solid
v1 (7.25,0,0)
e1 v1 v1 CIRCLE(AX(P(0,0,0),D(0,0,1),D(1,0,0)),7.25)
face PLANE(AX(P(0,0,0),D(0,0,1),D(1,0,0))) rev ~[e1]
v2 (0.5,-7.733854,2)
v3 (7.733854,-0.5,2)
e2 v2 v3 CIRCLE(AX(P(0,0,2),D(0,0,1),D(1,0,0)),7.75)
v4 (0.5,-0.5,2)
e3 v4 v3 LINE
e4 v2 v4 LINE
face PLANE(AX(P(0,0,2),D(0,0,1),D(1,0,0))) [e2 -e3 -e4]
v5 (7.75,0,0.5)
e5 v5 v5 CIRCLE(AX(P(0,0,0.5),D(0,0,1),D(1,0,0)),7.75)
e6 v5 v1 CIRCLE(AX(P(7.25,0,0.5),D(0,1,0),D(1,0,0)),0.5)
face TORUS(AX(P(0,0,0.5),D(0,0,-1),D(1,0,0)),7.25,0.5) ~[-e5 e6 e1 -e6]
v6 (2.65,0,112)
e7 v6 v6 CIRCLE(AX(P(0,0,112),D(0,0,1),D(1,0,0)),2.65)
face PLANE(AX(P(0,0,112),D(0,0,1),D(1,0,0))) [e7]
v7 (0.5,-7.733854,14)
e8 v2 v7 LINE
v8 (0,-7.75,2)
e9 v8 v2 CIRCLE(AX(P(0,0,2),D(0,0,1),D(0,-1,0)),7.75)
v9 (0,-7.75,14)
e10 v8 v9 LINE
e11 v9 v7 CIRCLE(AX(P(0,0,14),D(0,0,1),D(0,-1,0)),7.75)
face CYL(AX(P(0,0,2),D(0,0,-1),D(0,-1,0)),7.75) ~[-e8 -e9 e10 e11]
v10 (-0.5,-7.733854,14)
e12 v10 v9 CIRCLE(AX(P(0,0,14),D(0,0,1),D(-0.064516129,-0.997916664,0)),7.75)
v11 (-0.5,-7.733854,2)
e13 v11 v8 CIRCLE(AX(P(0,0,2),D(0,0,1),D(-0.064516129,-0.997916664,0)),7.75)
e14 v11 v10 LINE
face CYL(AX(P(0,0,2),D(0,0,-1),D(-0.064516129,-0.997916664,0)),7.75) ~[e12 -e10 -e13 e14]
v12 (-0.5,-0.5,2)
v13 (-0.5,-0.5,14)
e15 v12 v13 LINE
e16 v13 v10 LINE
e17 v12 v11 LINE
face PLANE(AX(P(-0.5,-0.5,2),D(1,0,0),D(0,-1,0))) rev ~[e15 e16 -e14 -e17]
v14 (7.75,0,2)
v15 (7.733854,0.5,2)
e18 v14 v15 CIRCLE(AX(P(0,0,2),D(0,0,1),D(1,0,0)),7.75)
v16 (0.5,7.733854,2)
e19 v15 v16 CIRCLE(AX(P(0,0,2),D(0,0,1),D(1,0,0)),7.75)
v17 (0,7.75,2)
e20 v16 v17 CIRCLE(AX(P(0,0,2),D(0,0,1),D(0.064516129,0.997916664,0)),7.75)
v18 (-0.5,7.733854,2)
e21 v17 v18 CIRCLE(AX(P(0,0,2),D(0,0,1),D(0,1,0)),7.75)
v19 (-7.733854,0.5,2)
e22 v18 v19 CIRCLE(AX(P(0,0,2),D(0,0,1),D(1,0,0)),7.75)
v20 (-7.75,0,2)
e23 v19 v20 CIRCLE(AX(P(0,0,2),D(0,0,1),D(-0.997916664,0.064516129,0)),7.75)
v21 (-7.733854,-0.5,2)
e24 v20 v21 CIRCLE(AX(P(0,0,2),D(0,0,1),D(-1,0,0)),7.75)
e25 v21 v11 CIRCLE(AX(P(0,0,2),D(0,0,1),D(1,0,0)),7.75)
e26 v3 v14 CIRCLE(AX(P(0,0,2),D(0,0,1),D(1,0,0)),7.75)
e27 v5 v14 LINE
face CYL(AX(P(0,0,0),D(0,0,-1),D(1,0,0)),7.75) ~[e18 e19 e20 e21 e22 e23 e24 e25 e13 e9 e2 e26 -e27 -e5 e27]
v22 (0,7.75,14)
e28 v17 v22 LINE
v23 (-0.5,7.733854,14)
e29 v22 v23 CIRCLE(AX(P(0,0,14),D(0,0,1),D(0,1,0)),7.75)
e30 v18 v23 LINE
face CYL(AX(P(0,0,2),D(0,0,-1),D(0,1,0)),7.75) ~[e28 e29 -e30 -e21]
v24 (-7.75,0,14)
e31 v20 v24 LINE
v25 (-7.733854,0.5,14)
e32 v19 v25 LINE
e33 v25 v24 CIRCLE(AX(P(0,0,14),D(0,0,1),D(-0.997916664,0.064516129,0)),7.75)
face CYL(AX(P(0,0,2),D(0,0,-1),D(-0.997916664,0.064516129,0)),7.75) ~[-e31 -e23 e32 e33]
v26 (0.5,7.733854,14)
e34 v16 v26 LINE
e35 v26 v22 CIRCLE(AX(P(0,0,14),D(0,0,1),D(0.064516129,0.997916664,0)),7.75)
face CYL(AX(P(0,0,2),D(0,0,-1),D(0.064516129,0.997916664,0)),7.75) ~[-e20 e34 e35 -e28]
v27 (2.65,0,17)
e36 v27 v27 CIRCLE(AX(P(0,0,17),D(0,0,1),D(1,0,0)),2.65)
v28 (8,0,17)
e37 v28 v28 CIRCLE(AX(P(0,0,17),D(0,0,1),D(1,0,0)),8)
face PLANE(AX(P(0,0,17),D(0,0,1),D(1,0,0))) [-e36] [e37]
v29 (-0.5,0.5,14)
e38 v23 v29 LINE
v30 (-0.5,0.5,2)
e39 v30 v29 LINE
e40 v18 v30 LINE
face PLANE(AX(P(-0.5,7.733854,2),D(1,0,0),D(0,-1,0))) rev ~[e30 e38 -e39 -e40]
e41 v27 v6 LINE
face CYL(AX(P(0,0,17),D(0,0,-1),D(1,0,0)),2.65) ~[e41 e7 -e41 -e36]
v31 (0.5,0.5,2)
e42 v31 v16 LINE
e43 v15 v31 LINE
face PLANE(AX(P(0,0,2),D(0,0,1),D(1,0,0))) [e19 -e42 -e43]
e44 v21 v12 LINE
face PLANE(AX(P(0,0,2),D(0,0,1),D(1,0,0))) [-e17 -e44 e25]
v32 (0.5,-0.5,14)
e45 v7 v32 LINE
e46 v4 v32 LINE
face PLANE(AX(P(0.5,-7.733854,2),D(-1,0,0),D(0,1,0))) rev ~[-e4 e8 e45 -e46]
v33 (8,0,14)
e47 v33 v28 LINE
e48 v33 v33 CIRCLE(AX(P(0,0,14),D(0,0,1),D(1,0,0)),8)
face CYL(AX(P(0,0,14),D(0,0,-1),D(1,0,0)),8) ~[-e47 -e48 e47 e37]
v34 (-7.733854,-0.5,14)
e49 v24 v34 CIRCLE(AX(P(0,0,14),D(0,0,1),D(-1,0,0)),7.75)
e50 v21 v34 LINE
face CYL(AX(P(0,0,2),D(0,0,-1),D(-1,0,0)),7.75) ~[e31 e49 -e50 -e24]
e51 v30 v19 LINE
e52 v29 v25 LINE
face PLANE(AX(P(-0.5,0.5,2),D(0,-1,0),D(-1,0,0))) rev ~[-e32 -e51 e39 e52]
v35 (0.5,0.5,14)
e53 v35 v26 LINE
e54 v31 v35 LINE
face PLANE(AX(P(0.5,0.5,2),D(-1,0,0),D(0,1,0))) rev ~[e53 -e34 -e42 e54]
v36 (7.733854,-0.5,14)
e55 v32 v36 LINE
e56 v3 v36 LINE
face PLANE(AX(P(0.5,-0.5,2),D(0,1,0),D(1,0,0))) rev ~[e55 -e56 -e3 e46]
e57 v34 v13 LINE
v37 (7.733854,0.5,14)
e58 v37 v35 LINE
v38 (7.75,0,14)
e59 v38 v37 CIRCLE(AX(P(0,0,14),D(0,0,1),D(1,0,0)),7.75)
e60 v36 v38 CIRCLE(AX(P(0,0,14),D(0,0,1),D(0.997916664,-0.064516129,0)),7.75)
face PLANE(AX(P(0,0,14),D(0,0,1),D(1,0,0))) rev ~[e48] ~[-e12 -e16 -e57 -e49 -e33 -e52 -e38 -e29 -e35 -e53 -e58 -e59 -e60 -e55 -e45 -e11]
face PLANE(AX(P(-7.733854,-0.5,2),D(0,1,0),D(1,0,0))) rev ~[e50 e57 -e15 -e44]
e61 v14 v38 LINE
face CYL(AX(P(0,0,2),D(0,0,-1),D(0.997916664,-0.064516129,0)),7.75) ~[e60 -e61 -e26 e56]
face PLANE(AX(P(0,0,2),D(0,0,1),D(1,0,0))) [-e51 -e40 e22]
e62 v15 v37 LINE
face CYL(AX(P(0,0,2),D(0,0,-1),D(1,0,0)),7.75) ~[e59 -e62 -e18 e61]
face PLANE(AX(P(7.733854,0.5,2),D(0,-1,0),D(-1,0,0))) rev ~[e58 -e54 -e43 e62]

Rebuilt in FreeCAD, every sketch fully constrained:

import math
import FreeCAD as App
import Part
import Sketcher
from FreeCAD import Vector


def edges_at(feature, points):
    """Names of the edges that pass closest to the given points."""
    edges = feature.Shape.Edges
    near = lambda p: min(range(len(edges)), key=lambda i: edges[i].distToShape(Part.Vertex(*p))[0])
    return sorted({f"Edge{near(p) + 1}" for p in points})

doc = App.newDocument("Part")
body = doc.addObject("PartDesign::Body", "Body")

sketch1 = body.newObject("Sketcher::SketchObject", "Sketch")
sketch1.AttachmentSupport = (doc.getObject("XY_Plane"), [""])
sketch1.MapMode = "FlatFace"
sketch1.addGeometry(Part.Circle(Vector(0, 0, 0), Vector(0, 0, 1), 8), False)
sketch1.addConstraint([
    Sketcher.Constraint("Coincident", 0, 3, -1, 1),
    Sketcher.Constraint("Diameter", 0, 15.5),
])
pad1 = body.newObject("PartDesign::Pad", "Pad")
pad1.Profile = sketch1
pad1.Length = 2

sketch2 = body.newObject("Sketcher::SketchObject", "Sketch001")
sketch2.AttachmentSupport = (doc.getObject("XY_Plane"), [""])
sketch2.MapMode = "FlatFace"
sketch2.AttachmentOffset = App.Placement(Vector(0, 0, 2), App.Rotation())
sketch2.addGeometry([
    Part.LineSegment(Vector(-0.5, 0.5, 0), Vector(-7.7, 0.5, 0)),
    Part.ArcOfCircle(Part.Circle(Vector(0, 0, 0), Vector(0, 0, 1), 7.7), math.radians(176.3), math.radians(180)),
    Part.ArcOfCircle(Part.Circle(Vector(0, 0, 0), Vector(0, 0, 1), 7.7), math.radians(180), math.radians(183.7)),
    Part.LineSegment(Vector(-7.7, -0.5, 0), Vector(-0.5, -0.5, 0)),
    Part.LineSegment(Vector(-0.5, -0.5, 0), Vector(-0.5, -7.7, 0)),
    Part.ArcOfCircle(Part.Circle(Vector(0, 0, 0), Vector(0, 0, 1), 7.7), math.radians(-93.7), math.radians(-90)),
    Part.ArcOfCircle(Part.Circle(Vector(0, 0, 0), Vector(0, 0, 1), 7.7), math.radians(-90), math.radians(-86.3)),
    Part.LineSegment(Vector(0.5, -7.7, 0), Vector(0.5, -0.5, 0)),
    Part.LineSegment(Vector(0.5, -0.5, 0), Vector(7.7, -0.5, 0)),
    Part.ArcOfCircle(Part.Circle(Vector(0, 0, 0), Vector(0, 0, 1), 7.7), math.radians(-3.7), math.radians(0)),
    Part.ArcOfCircle(Part.Circle(Vector(0, 0, 0), Vector(0, 0, 1), 7.7), math.radians(0), math.radians(3.7)),
    Part.LineSegment(Vector(7.7, 0.5, 0), Vector(0.5, 0.5, 0)),
    Part.LineSegment(Vector(0.5, 0.5, 0), Vector(0.5, 7.7, 0)),
    Part.ArcOfCircle(Part.Circle(Vector(0, 0, 0), Vector(0, 0, 1), 7.7), math.radians(86.3), math.radians(90)),
    Part.ArcOfCircle(Part.Circle(Vector(0, 0, 0), Vector(0, 0, 1), 7.7), math.radians(90), math.radians(93.7)),
    Part.LineSegment(Vector(-0.5, 7.7, 0), Vector(-0.5, 0.5, 0)),
], False)
sketch2.addConstraint([
    Sketcher.Constraint("Coincident", 0, 2, 1, 1),
    Sketcher.Constraint("Tangent", 1, 2, 2, 1),
    Sketcher.Constraint("Coincident", 2, 2, 3, 1),
    Sketcher.Constraint("Coincident", 3, 2, 4, 1),
    Sketcher.Constraint("Coincident", 4, 2, 5, 1),
    Sketcher.Constraint("Tangent", 5, 2, 6, 1),
    Sketcher.Constraint("Coincident", 6, 2, 7, 1),
    Sketcher.Constraint("Coincident", 7, 2, 8, 1),
    Sketcher.Constraint("Coincident", 8, 2, 9, 1),
    Sketcher.Constraint("Tangent", 9, 2, 10, 1),
    Sketcher.Constraint("Coincident", 10, 2, 11, 1),
    Sketcher.Constraint("Coincident", 11, 2, 12, 1),
    Sketcher.Constraint("Coincident", 12, 2, 13, 1),
    Sketcher.Constraint("Tangent", 13, 2, 14, 1),
    Sketcher.Constraint("Coincident", 14, 2, 15, 1),
    Sketcher.Constraint("Coincident", 15, 2, 0, 1),
    Sketcher.Constraint("Horizontal", 0),
    Sketcher.Constraint("Horizontal", 3),
    Sketcher.Constraint("Vertical", 4),
    Sketcher.Constraint("Vertical", 7),
    Sketcher.Constraint("Horizontal", 8),
    Sketcher.Constraint("Horizontal", 11),
    Sketcher.Constraint("Vertical", 12),
    Sketcher.Constraint("Vertical", 15),
    Sketcher.Constraint("Coincident", 1, 3, -1, 1),
    Sketcher.Constraint("Coincident", 5, 3, -1, 1),
    Sketcher.Constraint("Coincident", 9, 3, -1, 1),
    Sketcher.Constraint("Coincident", 13, 3, -1, 1),
    Sketcher.Constraint("Equal", 1, 2),
    Sketcher.Constraint("Equal", 2, 5),
    Sketcher.Constraint("Equal", 5, 6),
    Sketcher.Constraint("Equal", 6, 9),
    Sketcher.Constraint("Equal", 9, 10),
    Sketcher.Constraint("Equal", 10, 13),
    Sketcher.Constraint("Equal", 13, 14),
    Sketcher.Constraint("Symmetric", 3, 2, 11, 2, -1, 1),
    Sketcher.Constraint("Symmetric", 7, 2, 15, 2, -1, 1),
    Sketcher.Constraint("Symmetric", 3, 2, 7, 2, -2),
    Sketcher.Constraint("PointOnObject", 1, 2, -1),
    Sketcher.Constraint("PointOnObject", 5, 2, -2),
    Sketcher.Constraint("PointOnObject", 9, 2, -1),
    Sketcher.Constraint("PointOnObject", 13, 2, -2),
    Sketcher.Constraint("Equal", 11, 4),
    Sketcher.Constraint("Radius", 1, 7.75),
    Sketcher.Constraint("DistanceY", 2, 2, 0, 2, 1.0),
])
pad2 = body.newObject("PartDesign::Pad", "Pad001")
pad2.Profile = sketch2
pad2.Length = 12

sketch3 = body.newObject("Sketcher::SketchObject", "Sketch002")
sketch3.AttachmentSupport = (doc.getObject("XY_Plane"), [""])
sketch3.MapMode = "FlatFace"
sketch3.AttachmentOffset = App.Placement(Vector(0, 0, 14), App.Rotation())
sketch3.addGeometry(Part.Circle(Vector(0, 0, 0), Vector(0, 0, 1), 8), False)
sketch3.addConstraint([
    Sketcher.Constraint("Coincident", 0, 3, -1, 1),
    Sketcher.Constraint("Diameter", 0, 16.0),
])
pad3 = body.newObject("PartDesign::Pad", "Pad002")
pad3.Profile = sketch3
pad3.Length = 3
doc.recompute()

fillet = body.newObject("PartDesign::Fillet", "Fillet")
fillet.Base = (pad3, edges_at(pad3, [(-7.75, 0, 0)]))
fillet.Radius = 0.5

sketch4 = body.newObject("Sketcher::SketchObject", "Sketch003")
sketch4.AttachmentSupport = (doc.getObject("XY_Plane"), [""])
sketch4.MapMode = "FlatFace"
sketch4.AttachmentOffset = App.Placement(Vector(0, 0, 17), App.Rotation())
sketch4.addGeometry(Part.Circle(Vector(0, 0, 0), Vector(0, 0, 1), 2.6), False)
sketch4.addConstraint([
    Sketcher.Constraint("Coincident", 0, 3, -1, 1),
    Sketcher.Constraint("Diameter", 0, 5.3),
])
pad4 = body.newObject("PartDesign::Pad", "Pad003")
pad4.Profile = sketch4
pad4.Length = 95

doc.recompute()
